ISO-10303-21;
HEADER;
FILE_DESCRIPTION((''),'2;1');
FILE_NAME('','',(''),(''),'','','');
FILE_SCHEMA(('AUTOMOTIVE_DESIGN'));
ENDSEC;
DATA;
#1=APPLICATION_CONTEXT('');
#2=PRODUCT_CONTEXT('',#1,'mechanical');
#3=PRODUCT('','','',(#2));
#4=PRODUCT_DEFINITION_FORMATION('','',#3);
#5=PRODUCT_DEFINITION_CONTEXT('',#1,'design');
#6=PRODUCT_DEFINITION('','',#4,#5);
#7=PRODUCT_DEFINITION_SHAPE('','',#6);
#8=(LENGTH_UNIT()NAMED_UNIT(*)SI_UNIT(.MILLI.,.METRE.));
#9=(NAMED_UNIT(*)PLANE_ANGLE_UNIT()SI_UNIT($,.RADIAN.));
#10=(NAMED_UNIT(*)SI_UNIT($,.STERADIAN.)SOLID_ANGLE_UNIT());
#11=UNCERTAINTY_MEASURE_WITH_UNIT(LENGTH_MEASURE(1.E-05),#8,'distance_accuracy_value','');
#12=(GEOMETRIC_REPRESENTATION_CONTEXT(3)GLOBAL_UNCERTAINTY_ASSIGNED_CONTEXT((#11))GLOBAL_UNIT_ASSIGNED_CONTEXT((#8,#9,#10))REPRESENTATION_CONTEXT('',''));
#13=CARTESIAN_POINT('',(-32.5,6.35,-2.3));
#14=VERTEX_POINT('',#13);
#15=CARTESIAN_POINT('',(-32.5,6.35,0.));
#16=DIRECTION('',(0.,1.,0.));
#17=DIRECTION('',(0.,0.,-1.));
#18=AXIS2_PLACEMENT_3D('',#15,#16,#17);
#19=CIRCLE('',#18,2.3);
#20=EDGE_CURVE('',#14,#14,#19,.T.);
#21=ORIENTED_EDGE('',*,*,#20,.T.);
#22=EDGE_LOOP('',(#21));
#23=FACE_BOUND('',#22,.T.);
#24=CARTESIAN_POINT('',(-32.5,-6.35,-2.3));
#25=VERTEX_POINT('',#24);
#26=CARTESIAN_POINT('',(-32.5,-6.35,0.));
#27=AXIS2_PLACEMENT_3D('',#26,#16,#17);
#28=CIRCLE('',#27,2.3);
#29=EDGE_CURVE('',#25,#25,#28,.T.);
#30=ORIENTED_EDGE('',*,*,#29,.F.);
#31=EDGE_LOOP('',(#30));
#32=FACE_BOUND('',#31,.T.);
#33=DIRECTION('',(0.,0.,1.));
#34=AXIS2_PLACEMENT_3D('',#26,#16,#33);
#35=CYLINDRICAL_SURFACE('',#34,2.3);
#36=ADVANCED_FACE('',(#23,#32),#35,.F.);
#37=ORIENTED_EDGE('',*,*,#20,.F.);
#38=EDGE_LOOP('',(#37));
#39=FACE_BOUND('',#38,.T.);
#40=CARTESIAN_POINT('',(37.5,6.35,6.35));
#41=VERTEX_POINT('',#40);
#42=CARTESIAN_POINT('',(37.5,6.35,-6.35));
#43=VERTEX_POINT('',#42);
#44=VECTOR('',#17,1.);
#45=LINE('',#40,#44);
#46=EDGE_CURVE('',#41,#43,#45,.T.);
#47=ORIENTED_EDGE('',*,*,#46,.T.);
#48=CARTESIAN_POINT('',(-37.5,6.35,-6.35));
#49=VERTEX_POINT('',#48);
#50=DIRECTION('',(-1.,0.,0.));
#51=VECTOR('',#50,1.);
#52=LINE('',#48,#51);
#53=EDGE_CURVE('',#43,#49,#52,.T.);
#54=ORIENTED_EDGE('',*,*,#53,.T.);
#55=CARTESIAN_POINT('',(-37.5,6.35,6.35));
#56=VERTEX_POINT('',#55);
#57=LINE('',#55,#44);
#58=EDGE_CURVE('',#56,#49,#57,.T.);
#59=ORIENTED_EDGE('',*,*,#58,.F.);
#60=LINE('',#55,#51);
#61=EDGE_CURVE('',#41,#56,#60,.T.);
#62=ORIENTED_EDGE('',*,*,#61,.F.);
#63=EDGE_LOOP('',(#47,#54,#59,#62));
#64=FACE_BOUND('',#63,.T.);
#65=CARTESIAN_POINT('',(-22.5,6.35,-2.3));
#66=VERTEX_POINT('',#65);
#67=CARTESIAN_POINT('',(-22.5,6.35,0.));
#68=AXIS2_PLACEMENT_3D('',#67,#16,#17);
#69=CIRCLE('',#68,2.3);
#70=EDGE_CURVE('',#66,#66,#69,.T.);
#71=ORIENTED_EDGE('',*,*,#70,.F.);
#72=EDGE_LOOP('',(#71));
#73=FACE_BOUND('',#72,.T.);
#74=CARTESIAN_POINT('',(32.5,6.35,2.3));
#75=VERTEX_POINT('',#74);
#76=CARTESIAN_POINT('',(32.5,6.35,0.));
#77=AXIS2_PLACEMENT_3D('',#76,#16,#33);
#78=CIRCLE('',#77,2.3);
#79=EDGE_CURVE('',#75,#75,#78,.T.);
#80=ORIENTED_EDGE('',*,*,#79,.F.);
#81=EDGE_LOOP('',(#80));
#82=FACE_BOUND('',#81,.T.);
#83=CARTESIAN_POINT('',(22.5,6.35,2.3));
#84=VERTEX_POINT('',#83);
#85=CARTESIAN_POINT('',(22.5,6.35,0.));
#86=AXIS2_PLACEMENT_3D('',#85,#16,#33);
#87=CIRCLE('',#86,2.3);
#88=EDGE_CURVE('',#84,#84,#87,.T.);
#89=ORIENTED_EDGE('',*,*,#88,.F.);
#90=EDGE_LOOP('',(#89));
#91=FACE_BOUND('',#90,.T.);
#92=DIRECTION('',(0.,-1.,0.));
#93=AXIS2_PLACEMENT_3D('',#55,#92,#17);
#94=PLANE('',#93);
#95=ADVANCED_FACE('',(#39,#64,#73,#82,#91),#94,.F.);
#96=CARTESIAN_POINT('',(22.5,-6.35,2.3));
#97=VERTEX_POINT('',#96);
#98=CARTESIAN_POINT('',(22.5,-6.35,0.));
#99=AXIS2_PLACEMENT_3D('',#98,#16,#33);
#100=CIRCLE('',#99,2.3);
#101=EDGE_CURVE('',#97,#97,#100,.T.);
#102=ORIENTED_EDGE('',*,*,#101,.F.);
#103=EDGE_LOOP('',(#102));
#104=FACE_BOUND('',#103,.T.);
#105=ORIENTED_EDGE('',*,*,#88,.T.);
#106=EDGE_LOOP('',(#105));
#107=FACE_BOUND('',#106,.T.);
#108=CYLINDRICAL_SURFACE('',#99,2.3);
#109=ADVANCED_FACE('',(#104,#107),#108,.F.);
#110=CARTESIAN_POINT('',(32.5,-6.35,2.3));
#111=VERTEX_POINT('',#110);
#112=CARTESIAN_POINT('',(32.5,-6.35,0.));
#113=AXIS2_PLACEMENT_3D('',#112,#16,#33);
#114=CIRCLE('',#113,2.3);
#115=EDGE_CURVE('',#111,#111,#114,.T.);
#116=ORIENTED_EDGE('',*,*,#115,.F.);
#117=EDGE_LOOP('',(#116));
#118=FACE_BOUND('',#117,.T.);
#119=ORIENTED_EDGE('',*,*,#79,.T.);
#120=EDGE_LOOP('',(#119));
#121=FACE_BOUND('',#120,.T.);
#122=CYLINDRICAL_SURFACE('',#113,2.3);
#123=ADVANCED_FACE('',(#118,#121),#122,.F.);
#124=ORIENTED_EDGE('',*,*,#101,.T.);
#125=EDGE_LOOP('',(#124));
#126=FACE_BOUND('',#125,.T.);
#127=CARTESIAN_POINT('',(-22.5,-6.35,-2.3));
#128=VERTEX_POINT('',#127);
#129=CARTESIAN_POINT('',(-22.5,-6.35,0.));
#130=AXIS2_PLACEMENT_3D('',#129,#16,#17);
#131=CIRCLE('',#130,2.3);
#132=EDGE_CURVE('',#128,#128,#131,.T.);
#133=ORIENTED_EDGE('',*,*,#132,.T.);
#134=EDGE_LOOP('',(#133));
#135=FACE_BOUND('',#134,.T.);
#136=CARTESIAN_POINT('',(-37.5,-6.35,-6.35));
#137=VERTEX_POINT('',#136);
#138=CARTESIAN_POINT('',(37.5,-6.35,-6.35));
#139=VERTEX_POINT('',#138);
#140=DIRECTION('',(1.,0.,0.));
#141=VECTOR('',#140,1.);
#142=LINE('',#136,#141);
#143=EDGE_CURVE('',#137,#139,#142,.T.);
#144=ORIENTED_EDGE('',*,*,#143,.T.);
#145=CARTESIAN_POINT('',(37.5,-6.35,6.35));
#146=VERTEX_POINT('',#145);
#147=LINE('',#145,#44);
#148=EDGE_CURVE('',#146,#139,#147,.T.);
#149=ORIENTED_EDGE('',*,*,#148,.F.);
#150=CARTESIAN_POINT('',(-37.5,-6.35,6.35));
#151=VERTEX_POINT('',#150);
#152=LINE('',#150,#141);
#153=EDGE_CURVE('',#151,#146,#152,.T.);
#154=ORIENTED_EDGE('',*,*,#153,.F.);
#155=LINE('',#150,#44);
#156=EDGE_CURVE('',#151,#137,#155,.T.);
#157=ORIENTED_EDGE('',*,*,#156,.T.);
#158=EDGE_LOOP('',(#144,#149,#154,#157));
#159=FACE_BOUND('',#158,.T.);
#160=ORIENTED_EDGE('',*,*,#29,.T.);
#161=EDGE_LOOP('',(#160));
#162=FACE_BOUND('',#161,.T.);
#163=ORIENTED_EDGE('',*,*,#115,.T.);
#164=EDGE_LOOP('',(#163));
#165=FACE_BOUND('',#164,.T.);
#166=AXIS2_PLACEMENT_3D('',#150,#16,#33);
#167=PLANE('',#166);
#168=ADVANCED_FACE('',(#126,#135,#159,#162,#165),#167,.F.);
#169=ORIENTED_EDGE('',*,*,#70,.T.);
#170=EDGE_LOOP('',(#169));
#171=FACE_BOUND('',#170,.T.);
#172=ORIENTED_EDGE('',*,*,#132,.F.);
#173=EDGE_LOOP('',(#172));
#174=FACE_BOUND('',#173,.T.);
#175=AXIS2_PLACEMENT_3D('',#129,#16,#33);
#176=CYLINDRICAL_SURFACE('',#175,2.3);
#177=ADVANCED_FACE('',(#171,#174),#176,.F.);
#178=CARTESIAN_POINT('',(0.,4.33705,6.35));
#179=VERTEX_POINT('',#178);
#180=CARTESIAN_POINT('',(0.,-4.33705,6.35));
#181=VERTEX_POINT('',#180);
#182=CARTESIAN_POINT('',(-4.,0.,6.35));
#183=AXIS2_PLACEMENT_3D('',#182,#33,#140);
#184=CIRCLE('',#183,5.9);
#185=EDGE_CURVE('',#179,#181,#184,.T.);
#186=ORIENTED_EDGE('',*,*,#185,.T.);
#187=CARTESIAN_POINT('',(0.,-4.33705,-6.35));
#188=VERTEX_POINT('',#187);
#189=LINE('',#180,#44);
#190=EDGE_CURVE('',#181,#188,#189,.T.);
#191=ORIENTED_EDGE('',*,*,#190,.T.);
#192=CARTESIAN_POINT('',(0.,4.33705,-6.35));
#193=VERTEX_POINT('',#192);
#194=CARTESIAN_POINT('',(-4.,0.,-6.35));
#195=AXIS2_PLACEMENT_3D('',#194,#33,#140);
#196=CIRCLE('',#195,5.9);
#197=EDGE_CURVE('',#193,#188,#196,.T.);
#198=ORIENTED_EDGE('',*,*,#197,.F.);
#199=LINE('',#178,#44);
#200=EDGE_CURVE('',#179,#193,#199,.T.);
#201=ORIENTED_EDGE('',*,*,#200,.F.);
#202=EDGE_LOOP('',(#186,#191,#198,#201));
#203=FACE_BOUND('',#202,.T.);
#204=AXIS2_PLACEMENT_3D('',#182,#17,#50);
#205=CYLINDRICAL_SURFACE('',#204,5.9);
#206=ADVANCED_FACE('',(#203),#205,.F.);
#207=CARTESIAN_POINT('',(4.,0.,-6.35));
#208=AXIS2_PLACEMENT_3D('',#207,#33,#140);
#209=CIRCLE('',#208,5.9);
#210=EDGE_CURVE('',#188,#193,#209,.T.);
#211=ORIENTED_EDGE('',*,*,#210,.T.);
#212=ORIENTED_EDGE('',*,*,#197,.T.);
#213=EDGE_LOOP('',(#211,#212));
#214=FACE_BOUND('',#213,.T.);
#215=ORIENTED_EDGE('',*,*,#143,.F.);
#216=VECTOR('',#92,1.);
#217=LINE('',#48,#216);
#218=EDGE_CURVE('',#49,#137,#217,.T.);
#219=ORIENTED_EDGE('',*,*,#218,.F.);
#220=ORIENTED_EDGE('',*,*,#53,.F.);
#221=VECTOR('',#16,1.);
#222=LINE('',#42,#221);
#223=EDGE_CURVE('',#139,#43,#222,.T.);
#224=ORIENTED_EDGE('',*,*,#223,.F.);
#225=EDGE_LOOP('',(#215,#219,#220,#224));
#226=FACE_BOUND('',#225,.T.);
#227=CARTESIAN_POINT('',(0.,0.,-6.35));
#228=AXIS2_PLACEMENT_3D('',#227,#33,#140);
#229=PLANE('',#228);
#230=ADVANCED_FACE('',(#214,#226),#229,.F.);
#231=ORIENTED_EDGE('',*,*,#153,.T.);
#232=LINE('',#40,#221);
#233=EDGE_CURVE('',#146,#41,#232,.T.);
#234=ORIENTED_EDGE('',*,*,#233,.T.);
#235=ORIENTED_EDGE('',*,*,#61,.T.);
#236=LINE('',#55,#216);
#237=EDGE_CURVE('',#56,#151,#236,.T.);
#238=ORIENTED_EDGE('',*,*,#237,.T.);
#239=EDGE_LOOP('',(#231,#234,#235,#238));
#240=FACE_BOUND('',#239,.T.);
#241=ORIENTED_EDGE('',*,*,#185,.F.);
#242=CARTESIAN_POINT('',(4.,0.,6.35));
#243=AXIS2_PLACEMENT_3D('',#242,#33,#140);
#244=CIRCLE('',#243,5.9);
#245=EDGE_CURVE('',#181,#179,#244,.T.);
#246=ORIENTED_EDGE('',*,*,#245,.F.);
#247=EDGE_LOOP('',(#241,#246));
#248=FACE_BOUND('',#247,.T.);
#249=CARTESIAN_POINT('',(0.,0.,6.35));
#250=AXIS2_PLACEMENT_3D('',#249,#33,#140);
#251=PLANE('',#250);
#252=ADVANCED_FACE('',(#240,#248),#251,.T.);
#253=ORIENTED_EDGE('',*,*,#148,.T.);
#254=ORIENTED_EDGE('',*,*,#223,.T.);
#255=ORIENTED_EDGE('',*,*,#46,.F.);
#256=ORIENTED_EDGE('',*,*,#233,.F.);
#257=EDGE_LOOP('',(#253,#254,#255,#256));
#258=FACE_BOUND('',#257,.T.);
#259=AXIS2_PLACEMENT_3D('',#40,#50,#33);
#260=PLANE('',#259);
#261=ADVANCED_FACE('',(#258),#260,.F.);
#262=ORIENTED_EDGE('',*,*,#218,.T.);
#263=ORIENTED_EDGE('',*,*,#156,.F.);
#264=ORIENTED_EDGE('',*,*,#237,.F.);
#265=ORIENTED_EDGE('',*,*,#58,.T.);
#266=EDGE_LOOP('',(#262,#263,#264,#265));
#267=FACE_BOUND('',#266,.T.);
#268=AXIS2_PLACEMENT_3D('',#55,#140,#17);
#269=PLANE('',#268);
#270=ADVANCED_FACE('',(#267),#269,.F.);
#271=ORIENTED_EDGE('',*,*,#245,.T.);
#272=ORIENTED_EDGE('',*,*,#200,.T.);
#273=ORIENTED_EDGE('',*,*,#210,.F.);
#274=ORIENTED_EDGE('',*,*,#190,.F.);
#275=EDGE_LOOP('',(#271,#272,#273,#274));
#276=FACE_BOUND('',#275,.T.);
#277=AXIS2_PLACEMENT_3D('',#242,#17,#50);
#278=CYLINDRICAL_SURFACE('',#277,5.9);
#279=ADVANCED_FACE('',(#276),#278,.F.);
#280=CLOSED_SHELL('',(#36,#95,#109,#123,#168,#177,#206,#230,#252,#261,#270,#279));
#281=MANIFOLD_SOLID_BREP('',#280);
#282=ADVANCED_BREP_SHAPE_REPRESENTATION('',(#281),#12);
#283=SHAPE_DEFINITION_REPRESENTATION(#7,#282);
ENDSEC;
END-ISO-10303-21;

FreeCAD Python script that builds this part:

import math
import FreeCAD as App
import Part
import Sketcher
Q = App.Units.Quantity

doc = App.newDocument("Part")
params = doc.addObject("Spreadsheet::Sheet", "Params")
for row, (alias, value) in enumerate([
    ("sketch1_radius", "5.9 mm"),
    ("sketch1_width", "75 mm"),
    ("sketch1_height", "12.7 mm"),
    ("pad1_length", "12.7 mm"),
    ("sketch2_diameter", "4.6 mm"),
], start=1):
    params.set(f"A{row}", alias)
    params.set(f"B{row}", "=" + value)
    params.setAlias(f"B{row}", alias)

body = doc.addObject("PartDesign::Body", "Body")

# Sketch on XY plane
sketch1 = body.newObject("Sketcher::SketchObject", "Sketch")
sketch1.AttachmentSupport = (doc.getObject("XY_Plane"), [""])
sketch1.MapMode = "FlatFace"
sketch1.addGeometry(Part.LineSegment(App.Vector(-37.5, 6.35, 0), App.Vector(-37.5, -6.35, 0)), False)
sketch1.addGeometry(Part.LineSegment(App.Vector(-37.5, -6.35, 0), App.Vector(37.5, -6.35, 0)), False)
sketch1.addGeometry(Part.LineSegment(App.Vector(37.5, -6.35, 0), App.Vector(37.5, 6.35, 0)), False)
sketch1.addGeometry(Part.LineSegment(App.Vector(37.5, 6.35, 0), App.Vector(-37.5, 6.35, 0)), False)
sketch1.addGeometry(Part.ArcOfCircle(Part.Circle(App.Vector(-4, 0, 0), App.Vector(0, 0, 1), 5.9), math.radians(47.315089), math.radians(312.684911)), False)
sketch1.addGeometry(Part.ArcOfCircle(Part.Circle(App.Vector(4, 0, 0), App.Vector(0, 0, 1), 5.9), math.radians(-132.684911), math.radians(132.684911)), False)
sketch1.addConstraint(Sketcher.Constraint("Coincident", 0, 2, 1, 1))
sketch1.addConstraint(Sketcher.Constraint("Coincident", 1, 2, 2, 1))
sketch1.addConstraint(Sketcher.Constraint("Coincident", 2, 2, 3, 1))
sketch1.addConstraint(Sketcher.Constraint("Coincident", 3, 2, 0, 1))
sketch1.addConstraint(Sketcher.Constraint("Coincident", 4, 1, 5, 2))
sketch1.addConstraint(Sketcher.Constraint("Coincident", 5, 1, 4, 2))
sketch1.addConstraint(Sketcher.Constraint("Vertical", 0))
sketch1.addConstraint(Sketcher.Constraint("Horizontal", 1))
sketch1.addConstraint(Sketcher.Constraint("Vertical", 2))
sketch1.addConstraint(Sketcher.Constraint("Horizontal", 3))
sketch1.addConstraint(Sketcher.Constraint("Equal", 4, 5))
sketch1.addConstraint(Sketcher.Constraint("Symmetric", 4, 3, 5, 3, -1, 1))
sketch1.addConstraint(Sketcher.Constraint("Symmetric", 0, 2, 2, 2, -1, 1))
sketch1.addConstraint(Sketcher.Constraint("PointOnObject", 4, 3, -1))
sketch1.addConstraint(Sketcher.Constraint("Radius", 4, Q("5.9 mm")))
sketch1.addConstraint(Sketcher.Constraint("DistanceX", 1, 1, 1, 2, Q("75 mm")))
sketch1.addConstraint(Sketcher.Constraint("DistanceY", 0, 2, 0, 1, Q("12.7 mm")))
sketch1.addConstraint(Sketcher.Constraint("DistanceX", 4, 3, -1, 1, Q("4 mm")))
sketch1.setExpression("Constraints[14]", "Params.sketch1_radius")
sketch1.setExpression("Constraints[15]", "Params.sketch1_width")
sketch1.setExpression("Constraints[16]", "Params.sketch1_height")
pad1 = body.newObject("PartDesign::Pad", "Pad")
pad1.Profile = sketch1
pad1.setExpression("Length", "Params.pad1_length")
pad1.Midplane = True

# Sketch on XZ plane
sketch2 = body.newObject("Sketcher::SketchObject", "Sketch001")
sketch2.AttachmentSupport = (doc.getObject("XZ_Plane"), [""])
sketch2.MapMode = "FlatFace"
sketch2.AttachmentOffset = App.Placement(App.Vector(0, 0, -6.35), App.Rotation())
sketch2.addGeometry(Part.Circle(App.Vector(32.5, 0, 0), App.Vector(0, 0, 1), 2.3), False)
sketch2.addGeometry(Part.Circle(App.Vector(22.5, 0, 0), App.Vector(0, 0, 1), 2.3), False)
sketch2.addGeometry(Part.Circle(App.Vector(-32.5, 0, 0), App.Vector(0, 0, 1), 2.3), False)
sketch2.addGeometry(Part.Circle(App.Vector(-22.5, 0, 0), App.Vector(0, 0, 1), 2.3), False)
sketch2.addConstraint(Sketcher.Constraint("Equal", 0, 1))
sketch2.addConstraint(Sketcher.Constraint("Equal", 1, 2))
sketch2.addConstraint(Sketcher.Constraint("Equal", 2, 3))
sketch2.addConstraint(Sketcher.Constraint("Symmetric", 0, 3, 2, 3, -1, 1))
sketch2.addConstraint(Sketcher.Constraint("Symmetric", 1, 3, 3, 3, -1, 1))
sketch2.addConstraint(Sketcher.Constraint("PointOnObject", 0, 3, -1))
sketch2.addConstraint(Sketcher.Constraint("PointOnObject", 1, 3, -1))
sketch2.addConstraint(Sketcher.Constraint("Diameter", 0, Q("4.6 mm")))
sketch2.addConstraint(Sketcher.Constraint("DistanceX", 1, 3, 0, 3, Q("10 mm")))
sketch2.addConstraint(Sketcher.Constraint("DistanceX", 2, 3, 1, 3, Q("55 mm")))
sketch2.setExpression("Constraints[7]", "Params.sketch2_diameter")
pocket1 = body.newObject("PartDesign::Pocket", "Pocket")
pocket1.Profile = sketch2
pocket1.Type = "ThroughAll"
pocket1.Reversed = True

doc.recompute()
